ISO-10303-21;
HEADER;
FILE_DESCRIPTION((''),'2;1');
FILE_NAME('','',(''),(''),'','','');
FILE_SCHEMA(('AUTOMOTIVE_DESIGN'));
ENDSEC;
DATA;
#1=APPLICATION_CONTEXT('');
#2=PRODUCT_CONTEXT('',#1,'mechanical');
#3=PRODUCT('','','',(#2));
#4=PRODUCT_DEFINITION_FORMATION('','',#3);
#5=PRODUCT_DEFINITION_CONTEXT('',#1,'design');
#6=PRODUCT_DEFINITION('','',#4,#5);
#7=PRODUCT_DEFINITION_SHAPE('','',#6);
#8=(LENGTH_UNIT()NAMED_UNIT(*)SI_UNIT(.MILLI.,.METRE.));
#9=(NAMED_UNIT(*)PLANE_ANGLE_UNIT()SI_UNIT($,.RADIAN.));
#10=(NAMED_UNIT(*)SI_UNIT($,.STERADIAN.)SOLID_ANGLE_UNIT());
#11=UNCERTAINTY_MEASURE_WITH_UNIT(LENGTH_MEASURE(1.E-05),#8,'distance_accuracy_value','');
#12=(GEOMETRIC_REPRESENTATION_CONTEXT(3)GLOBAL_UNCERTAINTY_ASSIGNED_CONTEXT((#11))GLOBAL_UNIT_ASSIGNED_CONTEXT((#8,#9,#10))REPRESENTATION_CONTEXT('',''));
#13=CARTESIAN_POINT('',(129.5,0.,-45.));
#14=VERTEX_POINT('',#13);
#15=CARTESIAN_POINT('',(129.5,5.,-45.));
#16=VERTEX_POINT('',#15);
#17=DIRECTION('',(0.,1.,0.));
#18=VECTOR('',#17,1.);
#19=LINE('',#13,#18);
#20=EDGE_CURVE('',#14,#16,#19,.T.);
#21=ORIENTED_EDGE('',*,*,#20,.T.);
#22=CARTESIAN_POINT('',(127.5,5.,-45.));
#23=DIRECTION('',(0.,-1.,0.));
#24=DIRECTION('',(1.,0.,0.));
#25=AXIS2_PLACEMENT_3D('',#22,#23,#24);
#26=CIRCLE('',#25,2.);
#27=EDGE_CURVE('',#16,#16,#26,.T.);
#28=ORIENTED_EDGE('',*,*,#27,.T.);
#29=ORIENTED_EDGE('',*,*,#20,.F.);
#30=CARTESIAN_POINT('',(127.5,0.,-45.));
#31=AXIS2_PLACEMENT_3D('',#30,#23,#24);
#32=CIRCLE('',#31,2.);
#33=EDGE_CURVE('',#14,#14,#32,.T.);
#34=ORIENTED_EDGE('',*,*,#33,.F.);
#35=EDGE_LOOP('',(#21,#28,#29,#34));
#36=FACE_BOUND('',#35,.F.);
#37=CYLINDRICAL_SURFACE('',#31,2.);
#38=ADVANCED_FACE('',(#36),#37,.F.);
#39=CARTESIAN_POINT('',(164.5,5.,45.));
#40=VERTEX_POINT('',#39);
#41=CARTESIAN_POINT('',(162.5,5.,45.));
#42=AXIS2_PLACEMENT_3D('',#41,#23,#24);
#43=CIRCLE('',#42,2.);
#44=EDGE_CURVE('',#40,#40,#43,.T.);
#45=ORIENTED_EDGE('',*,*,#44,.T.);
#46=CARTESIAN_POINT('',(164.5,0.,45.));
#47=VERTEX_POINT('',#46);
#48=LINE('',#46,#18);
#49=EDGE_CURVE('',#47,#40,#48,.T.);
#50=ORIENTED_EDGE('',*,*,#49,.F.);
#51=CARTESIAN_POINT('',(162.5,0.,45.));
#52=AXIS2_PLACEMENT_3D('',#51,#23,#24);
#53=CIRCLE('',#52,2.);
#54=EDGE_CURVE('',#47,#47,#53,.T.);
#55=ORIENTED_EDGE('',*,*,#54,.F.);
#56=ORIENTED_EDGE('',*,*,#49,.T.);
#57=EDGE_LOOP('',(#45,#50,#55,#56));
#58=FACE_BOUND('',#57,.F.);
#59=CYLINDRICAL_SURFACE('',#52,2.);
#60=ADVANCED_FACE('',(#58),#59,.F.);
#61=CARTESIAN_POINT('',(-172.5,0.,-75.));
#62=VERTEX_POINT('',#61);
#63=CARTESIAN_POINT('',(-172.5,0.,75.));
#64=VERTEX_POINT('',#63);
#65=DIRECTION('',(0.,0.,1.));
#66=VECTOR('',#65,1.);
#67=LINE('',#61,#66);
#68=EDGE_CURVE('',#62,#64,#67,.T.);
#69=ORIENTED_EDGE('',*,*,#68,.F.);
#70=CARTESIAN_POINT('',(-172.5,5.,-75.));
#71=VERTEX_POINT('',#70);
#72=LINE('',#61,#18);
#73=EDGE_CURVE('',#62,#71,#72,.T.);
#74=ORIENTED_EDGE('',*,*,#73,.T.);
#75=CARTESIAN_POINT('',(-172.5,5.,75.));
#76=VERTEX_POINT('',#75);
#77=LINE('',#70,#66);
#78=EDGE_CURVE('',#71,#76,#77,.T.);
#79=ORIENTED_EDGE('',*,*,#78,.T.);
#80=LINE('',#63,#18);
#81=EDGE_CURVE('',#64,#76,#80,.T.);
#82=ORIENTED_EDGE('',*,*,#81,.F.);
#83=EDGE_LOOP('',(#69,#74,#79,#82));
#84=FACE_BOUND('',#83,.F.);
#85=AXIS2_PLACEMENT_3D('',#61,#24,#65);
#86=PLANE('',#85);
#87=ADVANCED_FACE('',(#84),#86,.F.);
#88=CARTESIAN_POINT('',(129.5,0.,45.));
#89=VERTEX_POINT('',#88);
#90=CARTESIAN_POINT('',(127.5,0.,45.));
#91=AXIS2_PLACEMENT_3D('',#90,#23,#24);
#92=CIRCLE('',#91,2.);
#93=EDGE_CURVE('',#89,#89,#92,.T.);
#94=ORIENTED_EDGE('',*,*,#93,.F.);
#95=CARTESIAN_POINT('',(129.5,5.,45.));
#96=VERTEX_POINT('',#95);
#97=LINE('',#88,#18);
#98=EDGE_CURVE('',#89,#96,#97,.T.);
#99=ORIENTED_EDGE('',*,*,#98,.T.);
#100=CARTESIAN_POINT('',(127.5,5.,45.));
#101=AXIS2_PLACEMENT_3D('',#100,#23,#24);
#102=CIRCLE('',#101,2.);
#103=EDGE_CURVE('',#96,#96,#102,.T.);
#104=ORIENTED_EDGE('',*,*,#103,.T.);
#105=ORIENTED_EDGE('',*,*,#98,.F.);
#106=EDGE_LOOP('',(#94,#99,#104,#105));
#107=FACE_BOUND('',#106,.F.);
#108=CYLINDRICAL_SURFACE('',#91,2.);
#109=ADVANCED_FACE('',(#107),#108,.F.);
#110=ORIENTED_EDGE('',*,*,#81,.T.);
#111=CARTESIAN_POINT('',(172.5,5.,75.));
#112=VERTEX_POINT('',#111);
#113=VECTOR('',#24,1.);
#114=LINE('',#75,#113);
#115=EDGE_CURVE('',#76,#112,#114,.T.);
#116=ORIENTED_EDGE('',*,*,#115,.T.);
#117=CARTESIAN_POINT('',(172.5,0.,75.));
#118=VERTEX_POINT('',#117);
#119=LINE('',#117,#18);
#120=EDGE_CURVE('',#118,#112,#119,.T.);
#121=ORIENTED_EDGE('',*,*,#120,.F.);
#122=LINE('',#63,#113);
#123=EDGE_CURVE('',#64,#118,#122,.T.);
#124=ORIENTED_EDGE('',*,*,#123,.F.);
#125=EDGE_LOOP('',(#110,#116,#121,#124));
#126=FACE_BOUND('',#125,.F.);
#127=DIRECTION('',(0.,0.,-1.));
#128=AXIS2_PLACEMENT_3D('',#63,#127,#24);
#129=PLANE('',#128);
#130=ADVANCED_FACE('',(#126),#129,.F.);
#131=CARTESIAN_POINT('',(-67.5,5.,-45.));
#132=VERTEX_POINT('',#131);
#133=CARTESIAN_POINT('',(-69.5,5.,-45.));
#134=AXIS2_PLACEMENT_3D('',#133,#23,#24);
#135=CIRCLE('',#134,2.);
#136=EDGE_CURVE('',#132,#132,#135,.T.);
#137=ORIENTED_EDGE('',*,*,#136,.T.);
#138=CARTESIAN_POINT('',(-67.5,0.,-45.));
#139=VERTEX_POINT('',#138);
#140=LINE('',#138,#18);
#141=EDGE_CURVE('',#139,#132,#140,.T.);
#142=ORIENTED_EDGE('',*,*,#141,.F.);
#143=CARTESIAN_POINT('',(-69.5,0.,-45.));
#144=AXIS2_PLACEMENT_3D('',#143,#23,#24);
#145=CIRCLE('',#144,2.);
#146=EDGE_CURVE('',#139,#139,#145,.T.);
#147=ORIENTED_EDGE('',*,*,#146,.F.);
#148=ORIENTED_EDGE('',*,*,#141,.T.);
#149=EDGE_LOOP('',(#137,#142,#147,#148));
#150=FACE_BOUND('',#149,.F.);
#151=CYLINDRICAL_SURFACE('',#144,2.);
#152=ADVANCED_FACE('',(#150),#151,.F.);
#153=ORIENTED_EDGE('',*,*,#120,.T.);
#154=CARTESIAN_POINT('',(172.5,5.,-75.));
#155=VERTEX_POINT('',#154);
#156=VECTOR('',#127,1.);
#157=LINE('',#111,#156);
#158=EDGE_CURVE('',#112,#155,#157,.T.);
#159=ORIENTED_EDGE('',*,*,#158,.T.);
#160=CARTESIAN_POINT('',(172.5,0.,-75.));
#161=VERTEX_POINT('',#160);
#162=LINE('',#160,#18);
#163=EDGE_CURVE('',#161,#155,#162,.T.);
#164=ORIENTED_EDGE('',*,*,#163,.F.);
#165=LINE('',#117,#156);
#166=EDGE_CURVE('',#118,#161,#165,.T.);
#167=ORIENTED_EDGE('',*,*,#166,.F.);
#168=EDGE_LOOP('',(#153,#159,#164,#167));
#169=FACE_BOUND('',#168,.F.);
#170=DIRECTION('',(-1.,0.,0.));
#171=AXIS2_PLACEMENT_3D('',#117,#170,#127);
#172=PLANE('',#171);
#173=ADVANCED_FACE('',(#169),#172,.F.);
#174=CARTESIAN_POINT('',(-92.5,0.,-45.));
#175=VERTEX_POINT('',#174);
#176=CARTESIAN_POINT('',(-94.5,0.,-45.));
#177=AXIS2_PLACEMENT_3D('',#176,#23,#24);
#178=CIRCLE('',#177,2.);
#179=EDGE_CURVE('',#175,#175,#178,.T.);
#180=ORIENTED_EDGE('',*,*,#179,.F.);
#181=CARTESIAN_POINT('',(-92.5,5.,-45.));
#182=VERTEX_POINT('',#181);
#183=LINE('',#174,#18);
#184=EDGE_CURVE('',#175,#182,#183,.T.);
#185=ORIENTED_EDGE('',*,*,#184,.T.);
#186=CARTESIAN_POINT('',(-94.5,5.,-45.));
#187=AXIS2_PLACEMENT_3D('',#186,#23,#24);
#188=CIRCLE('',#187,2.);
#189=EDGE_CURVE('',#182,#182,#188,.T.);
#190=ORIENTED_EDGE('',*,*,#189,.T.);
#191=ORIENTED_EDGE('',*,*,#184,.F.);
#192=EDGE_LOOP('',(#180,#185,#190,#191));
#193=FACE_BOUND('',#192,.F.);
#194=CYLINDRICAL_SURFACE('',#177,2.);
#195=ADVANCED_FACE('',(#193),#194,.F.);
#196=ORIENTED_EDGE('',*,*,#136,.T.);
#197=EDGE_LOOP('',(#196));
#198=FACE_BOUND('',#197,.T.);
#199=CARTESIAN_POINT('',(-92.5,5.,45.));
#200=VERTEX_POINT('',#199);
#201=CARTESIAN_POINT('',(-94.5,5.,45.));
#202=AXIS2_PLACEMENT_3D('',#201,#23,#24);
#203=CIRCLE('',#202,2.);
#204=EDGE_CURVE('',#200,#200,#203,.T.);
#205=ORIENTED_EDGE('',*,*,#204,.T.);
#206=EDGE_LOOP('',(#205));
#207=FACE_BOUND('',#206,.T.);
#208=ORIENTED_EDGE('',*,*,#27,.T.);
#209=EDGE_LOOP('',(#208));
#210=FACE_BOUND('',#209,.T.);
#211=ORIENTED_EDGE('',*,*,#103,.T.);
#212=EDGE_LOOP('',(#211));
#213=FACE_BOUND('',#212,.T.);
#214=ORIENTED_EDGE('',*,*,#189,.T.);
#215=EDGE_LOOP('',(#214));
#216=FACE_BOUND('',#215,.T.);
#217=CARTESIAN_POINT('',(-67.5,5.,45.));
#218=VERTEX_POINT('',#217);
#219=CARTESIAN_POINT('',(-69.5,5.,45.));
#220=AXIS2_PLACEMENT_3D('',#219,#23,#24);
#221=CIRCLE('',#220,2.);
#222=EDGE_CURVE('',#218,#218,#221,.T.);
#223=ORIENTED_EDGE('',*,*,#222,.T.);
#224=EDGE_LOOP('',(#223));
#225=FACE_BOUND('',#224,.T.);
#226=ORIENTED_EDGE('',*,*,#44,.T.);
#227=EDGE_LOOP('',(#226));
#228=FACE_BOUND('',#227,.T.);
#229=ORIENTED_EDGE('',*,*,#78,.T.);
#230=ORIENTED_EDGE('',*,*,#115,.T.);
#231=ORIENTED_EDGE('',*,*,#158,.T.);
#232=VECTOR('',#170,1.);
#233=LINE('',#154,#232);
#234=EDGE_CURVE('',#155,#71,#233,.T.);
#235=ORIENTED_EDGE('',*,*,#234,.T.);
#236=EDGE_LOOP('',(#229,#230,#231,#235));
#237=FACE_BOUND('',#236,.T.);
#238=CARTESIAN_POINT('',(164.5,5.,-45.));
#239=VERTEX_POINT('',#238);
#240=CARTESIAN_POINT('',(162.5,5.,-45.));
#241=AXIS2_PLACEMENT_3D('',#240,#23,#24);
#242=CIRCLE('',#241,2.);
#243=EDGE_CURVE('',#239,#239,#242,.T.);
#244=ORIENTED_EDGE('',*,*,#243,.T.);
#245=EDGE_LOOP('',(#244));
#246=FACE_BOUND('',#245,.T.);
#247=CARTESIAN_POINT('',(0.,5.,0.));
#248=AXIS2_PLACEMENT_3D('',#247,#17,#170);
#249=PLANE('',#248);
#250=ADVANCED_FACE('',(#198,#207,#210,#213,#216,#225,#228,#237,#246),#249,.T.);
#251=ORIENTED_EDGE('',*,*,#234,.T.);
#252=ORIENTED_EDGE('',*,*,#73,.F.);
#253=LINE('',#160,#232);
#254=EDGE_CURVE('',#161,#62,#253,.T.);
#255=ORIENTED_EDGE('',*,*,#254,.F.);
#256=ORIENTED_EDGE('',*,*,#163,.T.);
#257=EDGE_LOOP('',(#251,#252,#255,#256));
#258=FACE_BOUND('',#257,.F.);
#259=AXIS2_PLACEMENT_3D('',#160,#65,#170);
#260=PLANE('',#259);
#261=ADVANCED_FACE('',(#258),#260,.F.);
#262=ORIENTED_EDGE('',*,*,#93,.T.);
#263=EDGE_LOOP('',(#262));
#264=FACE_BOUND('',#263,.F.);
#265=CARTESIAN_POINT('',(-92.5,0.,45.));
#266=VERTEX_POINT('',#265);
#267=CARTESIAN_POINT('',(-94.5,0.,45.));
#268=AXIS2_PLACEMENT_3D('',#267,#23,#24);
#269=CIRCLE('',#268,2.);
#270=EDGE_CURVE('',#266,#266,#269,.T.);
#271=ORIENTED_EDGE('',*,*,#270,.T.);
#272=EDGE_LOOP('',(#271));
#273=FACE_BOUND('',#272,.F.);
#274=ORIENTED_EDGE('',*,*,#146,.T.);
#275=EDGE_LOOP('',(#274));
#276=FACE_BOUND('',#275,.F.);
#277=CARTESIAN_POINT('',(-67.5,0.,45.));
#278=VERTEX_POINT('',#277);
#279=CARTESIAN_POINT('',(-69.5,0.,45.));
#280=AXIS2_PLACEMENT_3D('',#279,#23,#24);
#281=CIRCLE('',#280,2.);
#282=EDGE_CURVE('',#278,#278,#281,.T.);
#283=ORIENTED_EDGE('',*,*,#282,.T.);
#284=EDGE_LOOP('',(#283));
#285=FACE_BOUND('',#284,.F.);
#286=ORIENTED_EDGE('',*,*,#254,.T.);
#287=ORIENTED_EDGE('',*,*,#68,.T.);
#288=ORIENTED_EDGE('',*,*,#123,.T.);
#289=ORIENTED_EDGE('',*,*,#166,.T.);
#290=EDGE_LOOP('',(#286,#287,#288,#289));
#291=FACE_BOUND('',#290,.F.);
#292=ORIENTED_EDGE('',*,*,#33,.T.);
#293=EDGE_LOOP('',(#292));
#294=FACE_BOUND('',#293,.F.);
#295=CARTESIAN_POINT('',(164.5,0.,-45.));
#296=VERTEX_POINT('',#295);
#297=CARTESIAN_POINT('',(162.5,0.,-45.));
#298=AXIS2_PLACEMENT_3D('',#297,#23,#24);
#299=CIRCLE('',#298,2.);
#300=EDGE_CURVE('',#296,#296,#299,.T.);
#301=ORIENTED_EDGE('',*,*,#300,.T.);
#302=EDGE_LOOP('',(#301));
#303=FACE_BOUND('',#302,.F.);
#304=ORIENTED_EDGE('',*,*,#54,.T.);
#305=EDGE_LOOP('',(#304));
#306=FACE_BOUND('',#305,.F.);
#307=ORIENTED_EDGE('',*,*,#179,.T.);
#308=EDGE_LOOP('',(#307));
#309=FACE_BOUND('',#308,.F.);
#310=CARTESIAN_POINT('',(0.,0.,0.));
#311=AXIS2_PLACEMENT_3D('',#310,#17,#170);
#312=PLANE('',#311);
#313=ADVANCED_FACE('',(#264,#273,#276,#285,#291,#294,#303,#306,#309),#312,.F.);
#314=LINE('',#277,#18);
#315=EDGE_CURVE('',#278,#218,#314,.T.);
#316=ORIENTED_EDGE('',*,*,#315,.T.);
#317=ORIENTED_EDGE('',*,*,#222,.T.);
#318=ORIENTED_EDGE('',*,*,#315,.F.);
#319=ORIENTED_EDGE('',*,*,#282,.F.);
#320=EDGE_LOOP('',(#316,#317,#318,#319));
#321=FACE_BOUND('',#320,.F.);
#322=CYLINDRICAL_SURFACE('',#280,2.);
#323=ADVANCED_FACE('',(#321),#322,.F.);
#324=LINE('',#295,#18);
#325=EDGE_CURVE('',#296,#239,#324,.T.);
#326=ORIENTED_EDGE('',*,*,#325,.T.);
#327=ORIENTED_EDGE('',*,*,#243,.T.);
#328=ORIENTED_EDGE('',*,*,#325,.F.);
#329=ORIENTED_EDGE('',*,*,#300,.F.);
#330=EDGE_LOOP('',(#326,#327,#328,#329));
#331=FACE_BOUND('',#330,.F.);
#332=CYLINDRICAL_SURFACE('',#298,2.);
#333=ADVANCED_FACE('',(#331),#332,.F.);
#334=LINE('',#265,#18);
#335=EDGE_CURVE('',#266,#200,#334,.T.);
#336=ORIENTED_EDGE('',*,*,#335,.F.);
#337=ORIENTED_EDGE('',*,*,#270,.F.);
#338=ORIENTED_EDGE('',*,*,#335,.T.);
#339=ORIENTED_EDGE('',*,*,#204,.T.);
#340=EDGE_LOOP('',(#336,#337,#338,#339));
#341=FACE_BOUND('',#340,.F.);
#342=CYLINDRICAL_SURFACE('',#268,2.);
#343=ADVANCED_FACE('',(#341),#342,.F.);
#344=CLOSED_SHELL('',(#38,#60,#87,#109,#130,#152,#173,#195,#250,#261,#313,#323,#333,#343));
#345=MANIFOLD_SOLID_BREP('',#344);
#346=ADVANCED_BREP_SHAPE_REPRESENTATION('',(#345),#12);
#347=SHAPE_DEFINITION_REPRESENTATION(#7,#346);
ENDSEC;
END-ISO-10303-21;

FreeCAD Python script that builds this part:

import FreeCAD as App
import Part
import Sketcher
from FreeCAD import Vector
Q = App.Units.Quantity


def add_polygon(sketch, points):
    """Adds a closed chain of lines whose ends are joined by coincident constraints."""
    first, n = sketch.GeometryCount, len(points)
    for a, b in zip(points, points[1:] + points[:1]):
        sketch.addGeometry(Part.LineSegment(App.Vector(*a, 0), App.Vector(*b, 0)), False)
    for i in range(n):
        sketch.addConstraint(Sketcher.Constraint("Coincident", first + i, 2, first + (i + 1) % n, 1))

doc = App.newDocument("Part")
body = doc.addObject("PartDesign::Body", "Body")

# Sketch on XZ plane
sketch1 = body.newObject("Sketcher::SketchObject", "Sketch")
sketch1.AttachmentSupport = (doc.getObject("XZ_Plane"), [""])
sketch1.MapMode = "FlatFace"
add_polygon(sketch1, [(-172, -75), (-172, 75), (172, 75), (172, -75)])  # lines 0-3
sketch1.addConstraint(Sketcher.Constraint("Vertical", 0))
sketch1.addConstraint(Sketcher.Constraint("Horizontal", 1))
sketch1.addConstraint(Sketcher.Constraint("Vertical", 2))
sketch1.addConstraint(Sketcher.Constraint("Horizontal", 3))
sketch1.addConstraint(Sketcher.Constraint("Symmetric", 0, 2, 2, 2, -1, 1))
sketch1.addConstraint(Sketcher.Constraint("DistanceX", 1, 1, 1, 2, Q("345 mm")))
sketch1.addConstraint(Sketcher.Constraint("DistanceY", 0, 1, 0, 2, Q("150 mm")))
pad1 = body.newObject("PartDesign::Pad", "Pad")
pad1.Profile = sketch1
pad1.Length = 5
pad1.Reversed = True

# Sketch on XZ plane
sketch2 = body.newObject("Sketcher::SketchObject", "Sketch001")
sketch2.AttachmentSupport = (doc.getObject("XZ_Plane"), [""])
sketch2.MapMode = "FlatFace"
sketch2.addGeometry(Part.Circle(Vector(162.5, 45, 0), Vector(0, 0, 1), 2), False)
sketch2.addGeometry(Part.Circle(Vector(162.5, -45, 0), Vector(0, 0, 1), 2), False)
sketch2.addGeometry(Part.Circle(Vector(127.5, 45, 0), Vector(0, 0, 1), 2), False)
sketch2.addGeometry(Part.Circle(Vector(127.5, -45, 0), Vector(0, 0, 1), 2), False)
sketch2.addGeometry(Part.Circle(Vector(-69.5, 45, 0), Vector(0, 0, 1), 2), False)
sketch2.addGeometry(Part.Circle(Vector(-69.5, -45, 0), Vector(0, 0, 1), 2), False)
sketch2.addGeometry(Part.Circle(Vector(-94.5, 45, 0), Vector(0, 0, 1), 2), False)
sketch2.addGeometry(Part.Circle(Vector(-94.5, -45, 0), Vector(0, 0, 1), 2), False)
sketch2.addConstraint(Sketcher.Constraint("Equal", 0, 1))
sketch2.addConstraint(Sketcher.Constraint("Equal", 1, 2))
sketch2.addConstraint(Sketcher.Constraint("Equal", 2, 3))
sketch2.addConstraint(Sketcher.Constraint("Equal", 3, 4))
sketch2.addConstraint(Sketcher.Constraint("Equal", 4, 5))
sketch2.addConstraint(Sketcher.Constraint("Equal", 5, 6))
sketch2.addConstraint(Sketcher.Constraint("Equal", 6, 7))
sketch2.addConstraint(Sketcher.Constraint("Symmetric", 0, 3, 1, 3, -1))
sketch2.addConstraint(Sketcher.Constraint("Symmetric", 2, 3, 3, 3, -1))
sketch2.addConstraint(Sketcher.Constraint("Symmetric", 4, 3, 5, 3, -1))
sketch2.addConstraint(Sketcher.Constraint("Symmetric", 6, 3, 7, 3, -1))
sketch2.addConstraint(Sketcher.Constraint("Horizontal", 0, 3, 2, 3))
sketch2.addConstraint(Sketcher.Constraint("Horizontal", 2, 3, 4, 3))
sketch2.addConstraint(Sketcher.Constraint("Horizontal", 4, 3, 6, 3))
sketch2.addConstraint(Sketcher.Constraint("Diameter", 0, Q("4 mm")))
sketch2.addConstraint(Sketcher.Constraint("DistanceY", -1, 1, 0, 3, Q("45 mm")))
sketch2.addConstraint(Sketcher.Constraint("DistanceX", 2, 3, 0, 3, Q("35 mm")))
sketch2.addConstraint(Sketcher.Constraint("DistanceX", 4, 3, 2, 3, Q("197 mm")))
sketch2.addConstraint(Sketcher.Constraint("DistanceX", 6, 3, 4, 3, Q("25 mm")))
sketch2.addConstraint(Sketcher.Constraint("DistanceX", -1, 1, 0, 3, Q("162.5 mm")))
pocket1 = body.newObject("PartDesign::Pocket", "Pocket")
pocket1.Profile = sketch2
pocket1.Length = 5

doc.recompute()
